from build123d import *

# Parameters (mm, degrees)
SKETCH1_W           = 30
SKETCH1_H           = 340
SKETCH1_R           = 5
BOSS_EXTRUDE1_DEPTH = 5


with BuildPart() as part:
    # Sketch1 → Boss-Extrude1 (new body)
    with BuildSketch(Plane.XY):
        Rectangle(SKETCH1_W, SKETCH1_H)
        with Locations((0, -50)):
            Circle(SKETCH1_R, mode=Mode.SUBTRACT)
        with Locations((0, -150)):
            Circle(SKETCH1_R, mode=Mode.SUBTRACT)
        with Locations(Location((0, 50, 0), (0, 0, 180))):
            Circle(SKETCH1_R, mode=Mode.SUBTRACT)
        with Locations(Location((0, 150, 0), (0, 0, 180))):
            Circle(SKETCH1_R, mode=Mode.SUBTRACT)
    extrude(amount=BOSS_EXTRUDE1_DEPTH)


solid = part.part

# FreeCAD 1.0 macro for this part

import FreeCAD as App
import Part
import Sketcher
Q = App.Units.Quantity

doc = App.newDocument("Part")
params = doc.addObject("Spreadsheet::Sheet", "Params")
for row, (alias, value) in enumerate([
    ("sketch1_diameter", "10 mm"),
    ("sketch1_width", "30 mm"),
    ("sketch1_height", "340 mm"),
    ("pad1_length", "5 mm"),
], start=1):
    params.set(f"A{row}", alias)
    params.set(f"B{row}", "=" + value)
    params.setAlias(f"B{row}", alias)

body = doc.addObject("PartDesign::Body", "Body")

# Sketch on XY plane
sketch1 = body.newObject("Sketcher::SketchObject", "Sketch")
sketch1.AttachmentSupport = (doc.getObject("XY_Plane"), [""])
sketch1.MapMode = "FlatFace"
sketch1.addGeometry(Part.LineSegment(App.Vector(-15, 170, 0), App.Vector(-15, -170, 0)), False)
sketch1.addGeometry(Part.LineSegment(App.Vector(-15, -170, 0), App.Vector(15, -170, 0)), False)
sketch1.addGeometry(Part.LineSegment(App.Vector(15, -170, 0), App.Vector(15, 170, 0)), False)
sketch1.addGeometry(Part.LineSegment(App.Vector(15, 170, 0), App.Vector(-15, 170, 0)), False)
sketch1.addGeometry(Part.Circle(App.Vector(0, -150, 0), App.Vector(0, 0, 1), 5), False)
sketch1.addGeometry(Part.Circle(App.Vector(0, -50, 0), App.Vector(0, 0, 1), 5), False)
sketch1.addGeometry(Part.Circle(App.Vector(0, 50, 0), App.Vector(0, 0, 1), 5), False)
sketch1.addGeometry(Part.Circle(App.Vector(0, 150, 0), App.Vector(0, 0, 1), 5), False)
sketch1.addConstraint(Sketcher.Constraint("Coincident", 0, 2, 1, 1))
sketch1.addConstraint(Sketcher.Constraint("Coincident", 1, 2, 2, 1))
sketch1.addConstraint(Sketcher.Constraint("Coincident", 2, 2, 3, 1))
sketch1.addConstraint(Sketcher.Constraint("Coincident", 3, 2, 0, 1))
sketch1.addConstraint(Sketcher.Constraint("Vertical", 0))
sketch1.addConstraint(Sketcher.Constraint("Horizontal", 1))
sketch1.addConstraint(Sketcher.Constraint("Vertical", 2))
sketch1.addConstraint(Sketcher.Constraint("Horizontal", 3))
sketch1.addConstraint(Sketcher.Constraint("Equal", 4, 5))
sketch1.addConstraint(Sketcher.Constraint("Equal", 5, 6))
sketch1.addConstraint(Sketcher.Constraint("Equal", 6, 7))
sketch1.addConstraint(Sketcher.Constraint("Symmetric", 5, 3, 6, 3, -1, 1))
sketch1.addConstraint(Sketcher.Constraint("Symmetric", 4, 3, 7, 3, -1, 1))
sketch1.addConstraint(Sketcher.Constraint("Symmetric", 0, 2, 2, 2, -1, 1))
sketch1.addConstraint(Sketcher.Constraint("PointOnObject", 4, 3, -2))
sketch1.addConstraint(Sketcher.Constraint("PointOnObject", 5, 3, -2))
sketch1.addConstraint(Sketcher.Constraint("Diameter", 4, Q("10 mm")))
sketch1.addConstraint(Sketcher.Constraint("DistanceX", 1, 1, 1, 2, Q("30 mm")))
sketch1.addConstraint(Sketcher.Constraint("DistanceY", 0, 2, 0, 1, Q("340 mm")))
sketch1.addConstraint(Sketcher.Constraint("DistanceY", 4, 3, -1, 1, Q("150 mm")))
sketch1.addConstraint(Sketcher.Constraint("DistanceY", 5, 3, -1, 1, Q("50 mm")))
sketch1.setExpression("Constraints[16]", "Params.sketch1_diameter")
sketch1.setExpression("Constraints[17]", "Params.sketch1_width")
sketch1.setExpression("Constraints[18]", "Params.sketch1_height")
pad1 = body.newObject("PartDesign::Pad", "Pad")
pad1.Profile = sketch1
pad1.setExpression("Length", "Params.pad1_length")

doc.recompute()
